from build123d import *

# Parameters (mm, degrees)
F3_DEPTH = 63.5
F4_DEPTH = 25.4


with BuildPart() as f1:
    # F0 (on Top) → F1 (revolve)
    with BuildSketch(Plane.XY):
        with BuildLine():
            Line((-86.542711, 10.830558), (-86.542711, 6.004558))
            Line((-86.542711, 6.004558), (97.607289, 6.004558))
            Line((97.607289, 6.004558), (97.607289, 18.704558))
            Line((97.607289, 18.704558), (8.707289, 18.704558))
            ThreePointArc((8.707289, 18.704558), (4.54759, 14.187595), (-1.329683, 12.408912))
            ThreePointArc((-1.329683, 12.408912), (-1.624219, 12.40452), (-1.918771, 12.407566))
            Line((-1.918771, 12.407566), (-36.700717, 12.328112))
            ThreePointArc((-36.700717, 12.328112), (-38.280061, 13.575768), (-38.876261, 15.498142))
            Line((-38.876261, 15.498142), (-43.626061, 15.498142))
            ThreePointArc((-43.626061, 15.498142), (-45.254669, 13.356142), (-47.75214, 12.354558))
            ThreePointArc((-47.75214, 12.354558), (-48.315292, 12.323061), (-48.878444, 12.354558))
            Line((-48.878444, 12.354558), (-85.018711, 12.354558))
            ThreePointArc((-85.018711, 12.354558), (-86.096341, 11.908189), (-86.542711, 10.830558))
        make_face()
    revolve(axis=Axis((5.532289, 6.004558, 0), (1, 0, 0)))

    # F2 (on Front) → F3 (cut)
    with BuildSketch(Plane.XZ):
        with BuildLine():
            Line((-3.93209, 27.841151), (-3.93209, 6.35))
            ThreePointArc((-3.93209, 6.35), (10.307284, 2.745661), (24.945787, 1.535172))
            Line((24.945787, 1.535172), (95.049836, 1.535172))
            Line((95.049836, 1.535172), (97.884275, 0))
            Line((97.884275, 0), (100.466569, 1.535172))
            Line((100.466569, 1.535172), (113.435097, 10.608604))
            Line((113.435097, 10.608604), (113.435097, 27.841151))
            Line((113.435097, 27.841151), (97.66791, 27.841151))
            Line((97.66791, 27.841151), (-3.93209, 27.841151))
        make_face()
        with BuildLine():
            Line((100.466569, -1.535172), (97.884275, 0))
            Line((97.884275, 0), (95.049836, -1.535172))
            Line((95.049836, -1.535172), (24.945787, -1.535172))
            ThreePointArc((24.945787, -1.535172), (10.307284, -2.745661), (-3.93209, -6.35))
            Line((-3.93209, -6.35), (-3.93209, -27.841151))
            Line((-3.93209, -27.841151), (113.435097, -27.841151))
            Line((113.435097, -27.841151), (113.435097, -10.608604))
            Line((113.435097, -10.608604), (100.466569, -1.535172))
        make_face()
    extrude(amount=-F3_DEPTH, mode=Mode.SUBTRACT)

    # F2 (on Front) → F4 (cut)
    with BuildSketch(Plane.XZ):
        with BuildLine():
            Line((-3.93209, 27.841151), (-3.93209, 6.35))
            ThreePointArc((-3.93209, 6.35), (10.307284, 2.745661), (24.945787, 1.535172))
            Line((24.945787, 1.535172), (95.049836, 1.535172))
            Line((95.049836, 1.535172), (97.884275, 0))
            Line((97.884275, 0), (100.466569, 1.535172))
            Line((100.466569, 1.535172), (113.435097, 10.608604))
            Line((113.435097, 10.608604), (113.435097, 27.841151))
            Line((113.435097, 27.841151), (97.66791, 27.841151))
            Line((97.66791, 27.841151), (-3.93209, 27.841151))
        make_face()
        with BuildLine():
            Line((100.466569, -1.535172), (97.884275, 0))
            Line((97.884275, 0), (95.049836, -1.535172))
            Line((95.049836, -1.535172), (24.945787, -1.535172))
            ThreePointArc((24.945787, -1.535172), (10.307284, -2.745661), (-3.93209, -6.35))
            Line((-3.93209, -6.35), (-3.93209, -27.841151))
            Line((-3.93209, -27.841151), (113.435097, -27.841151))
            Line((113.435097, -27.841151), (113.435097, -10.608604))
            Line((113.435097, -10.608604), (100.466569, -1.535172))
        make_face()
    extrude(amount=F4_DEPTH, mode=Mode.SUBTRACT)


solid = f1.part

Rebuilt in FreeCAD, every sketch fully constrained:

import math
import FreeCAD as App
import Part
import Sketcher
from FreeCAD import Vector
Q = App.Units.Quantity

doc = App.newDocument("Part")
params = doc.addObject("Spreadsheet::Sheet", "Params")
for row, (alias, value) in enumerate([
    ("sketch1_radius", "0.06 in"),
    ("sketch1_width", "3.5 in"),
    ("sketch1_height", "0.5 in"),
    ("sketch1_width2", "7.25 in"),
    ("sketch1_width3", "7.25 in"),
    ("revolution_angle", "360 deg"),
    ("pocket1_length", "2.5 in"),
    ("pocket2_length", "1 in"),
], start=1):
    params.set(f"A{row}", alias)
    params.set(f"B{row}", "=" + value)
    params.setAlias(f"B{row}", alias)

body = doc.addObject("PartDesign::Body", "Body")

sketch1 = body.newObject("Sketcher::SketchObject", "Sketch")
sketch1.AttachmentSupport = (doc.getObject("XY_Plane"), [""])
sketch1.MapMode = "FlatFace"
sketch1.addGeometry([
    Part.LineSegment(Vector(-86.542711, 10.830558, 0), Vector(-86.542711, 6.004558, 0)),
    Part.LineSegment(Vector(-86.542711, 6.004558, 0), Vector(97.607289, 6.004558, 0)),
    Part.LineSegment(Vector(97.607289, 6.004558, 0), Vector(97.607289, 18.704558, 0)),
    Part.LineSegment(Vector(97.607289, 18.704558, 0), Vector(8.707289, 18.704558, 0)),
    Part.ArcOfCircle(Part.Circle(Vector(-1.650865, 24.069618, 0), Vector(0, 0, 1), 11.665128), math.radians(-88.422247), math.radians(-27.382134)),
    Part.ArcOfCircle(Part.Circle(Vector(-1.650873, 24.070294, 0), Vector(0, 0, 1), 11.665804), math.radians(-91.315876), math.radians(-88.422296)),
    Part.LineSegment(Vector(-1.918771, 12.407566, 0), Vector(-36.700717, 12.328112, 0)),
    Part.ArcOfCircle(Part.Circle(Vector(-35.478931, 15.498142, 0), Vector(0, 0, 1), 3.39733), math.radians(-179.999999), math.radians(-111.077552)),
    Part.LineSegment(Vector(-38.876261, 15.498142, 0), Vector(-43.626061, 15.498142, 0)),
    Part.ArcOfCircle(Part.Circle(Vector(-48.315293, 17.373332, 0), Vector(0, 0, 1), 5.05027), math.radians(-83.597666), math.radians(-21.796111)),
    Part.ArcOfCircle(Part.Circle(Vector(-48.315292, 17.37326, 0), Vector(0, 0, 1), 5.050199), math.radians(-96.402417), math.radians(-83.597583)),
    Part.LineSegment(Vector(-48.878444, 12.354558, 0), Vector(-85.018711, 12.354558, 0)),
    Part.ArcOfCircle(Part.Circle(Vector(-85.01871, 10.830557, 0), Vector(0, 0, 1), 1.524001), math.radians(90.00003), math.radians(179.99997)),
], False)
sketch1.addGeometry(Part.LineSegment(Vector(-86.542711, 6.004558, 0), Vector(97.607289, 6.004558, 0)), True)
sketch1.addConstraint([
    Sketcher.Constraint("Coincident", 0, 2, 1, 1),
    Sketcher.Constraint("Coincident", 1, 2, 2, 1),
    Sketcher.Constraint("Coincident", 2, 2, 3, 1),
    Sketcher.Constraint("Coincident", 3, 2, 4, 2),
    Sketcher.Constraint("Coincident", 4, 1, 5, 2),
    Sketcher.Constraint("Coincident", 5, 1, 6, 1),
    Sketcher.Constraint("Coincident", 6, 2, 7, 2),
    Sketcher.Constraint("Coincident", 7, 1, 8, 1),
    Sketcher.Constraint("Coincident", 8, 2, 9, 2),
    Sketcher.Constraint("Coincident", 9, 1, 10, 2),
    Sketcher.Constraint("Coincident", 10, 1, 11, 1),
    Sketcher.Constraint("Coincident", 11, 2, 12, 1),
    Sketcher.Constraint("Coincident", 12, 2, 0, 1),
    Sketcher.Constraint("Vertical", 0),
    Sketcher.Constraint("Horizontal", 1),
    Sketcher.Constraint("Vertical", 2),
    Sketcher.Constraint("Horizontal", 3),
    Sketcher.Constraint("Horizontal", 8),
    Sketcher.Constraint("Horizontal", 11),
    Sketcher.Constraint("Horizontal", 13),
    Sketcher.Constraint("Coincident", 13, 1, 0, 2),
    Sketcher.Constraint("Radius", 12, Q("0.06 in")),
    Sketcher.Constraint("DistanceX", 3, 2, 3, 1, Q("3.5 in")),
    Sketcher.Constraint("DistanceY", 2, 1, 2, 2, Q("0.5 in")),
    Sketcher.Constraint("DistanceX", 1, 1, 1, 2, Q("7.25 in")),
    Sketcher.Constraint("DistanceX", 13, 1, 13, 2, Q("7.25 in")),
    Sketcher.Constraint("DistanceY", 0, 2, 0, 1, Q("0.19 in")),
    Sketcher.Constraint("DistanceX", 8, 2, 8, 1, Q("0.187 in")),
    Sketcher.Constraint("Radius", 10, Q("5.050199 mm")),
    Sketcher.Constraint("DistanceY", 0, 2, 12, 3, Q("0.19 in")),
    Sketcher.Constraint("DistanceX", 0, 2, 11, 2, Q("0.06 in")),
    Sketcher.Constraint("Radius", 4, Q("11.665128 mm")),
    Sketcher.Constraint("Radius", 7, Q("3.39733 mm")),
    Sketcher.Constraint("Radius", 9, Q("5.05027 mm")),
    Sketcher.Constraint("DistanceY", -1, 1, 12, 3, Q("0.4263999 in")),
    Sketcher.Constraint("DistanceY", -1, 1, 9, 1, Q("0.4863999 in")),
    Sketcher.Constraint("Radius", 5, Q("11.665804 mm")),
    Sketcher.Constraint("DistanceY", 6, 2, 4, 1, Q("0.0808 mm")),
    Sketcher.Constraint("DistanceX", 11, 2, 11, 1, Q("36.140267 mm")),
    Sketcher.Constraint("DistanceX", 7, 3, -1, 1, Q("35.478931 mm")),
    Sketcher.Constraint("DistanceY", -1, 1, 9, 3, Q("17.373332 mm")),
    Sketcher.Constraint("DistanceY", -1, 1, 10, 3, Q("17.37326 mm")),
    Sketcher.Constraint("DistanceX", 12, 3, -1, 1, Q("85.01871 mm")),
    Sketcher.Constraint("DistanceX", 5, 1, -1, 1, Q("1.918771 mm")),
    Sketcher.Constraint("DistanceY", 7, 3, 5, 3, Q("8.572152 mm")),
    Sketcher.Constraint("DistanceY", 7, 3, 9, 3, Q("1.87519 mm")),
    Sketcher.Constraint("DistanceX", 9, 3, 5, 3, Q("46.664419 mm")),
    Sketcher.Constraint("DistanceX", 4, 3, 4, 1, Q("0.321182 mm")),
])
sketch1.setExpression("Constraints[21]", "Params.sketch1_radius")
sketch1.setExpression("Constraints[22]", "Params.sketch1_width")
sketch1.setExpression("Constraints[23]", "Params.sketch1_height")
sketch1.setExpression("Constraints[24]", "Params.sketch1_width2")
sketch1.setExpression("Constraints[25]", "Params.sketch1_width3")
revolution = body.newObject("PartDesign::Revolution", "Revolution")
revolution.Profile = sketch1
revolution.ReferenceAxis = (sketch1, ["Axis0"])
revolution.setExpression("Angle", "Params.revolution_angle")

sketch2 = body.newObject("Sketcher::SketchObject", "Sketch001")
sketch2.AttachmentSupport = (doc.getObject("XZ_Plane"), [""])
sketch2.MapMode = "FlatFace"
sketch2.addGeometry([
    Part.LineSegment(Vector(-3.9, 27.8, 0), Vector(-3.9, 6.3, 0)),
    Part.ArcOfCircle(Part.Circle(Vector(24.9, 90.4, 0), Vector(0, 0, 1), 88.9), math.radians(-108.94), math.radians(-89.99)),
    Part.LineSegment(Vector(24.9, 1.5, 0), Vector(95, 1.5, 0)),
    Part.LineSegment(Vector(95, 1.5, 0), Vector(97.9, 0, 0)),
    Part.LineSegment(Vector(97.9, 0, 0), Vector(100.5, 1.5, 0)),
    Part.LineSegment(Vector(100.5, 1.5, 0), Vector(113.4, 10.6, 0)),
    Part.LineSegment(Vector(113.4, 10.6, 0), Vector(113.4, 27.8, 0)),
    Part.LineSegment(Vector(113.4, 27.8, 0), Vector(-3.9, 27.8, 0)),
    Part.LineSegment(Vector(100.5, -1.5, 0), Vector(97.9, 0, 0)),
    Part.LineSegment(Vector(97.9, 0, 0), Vector(95, -1.5, 0)),
    Part.LineSegment(Vector(95, -1.5, 0), Vector(24.9, -1.5, 0)),
    Part.ArcOfCircle(Part.Circle(Vector(24.9, -90.4, 0), Vector(0, 0, 1), 88.9), math.radians(89.99), math.radians(108.94)),
    Part.LineSegment(Vector(-3.9, -6.3, 0), Vector(-3.9, -27.8, 0)),
    Part.LineSegment(Vector(-3.9, -27.8, 0), Vector(113.4, -27.8, 0)),
    Part.LineSegment(Vector(113.4, -27.8, 0), Vector(113.4, -10.6, 0)),
    Part.LineSegment(Vector(113.4, -10.6, 0), Vector(100.5, -1.5, 0)),
], False)
sketch2.addConstraint([
    Sketcher.Constraint("Coincident", 0, 2, 1, 1),
    Sketcher.Constraint("Coincident", 1, 2, 2, 1),
    Sketcher.Constraint("Coincident", 2, 2, 3, 1),
    Sketcher.Constraint("Coincident", 3, 2, 4, 1),
    Sketcher.Constraint("Coincident", 4, 2, 5, 1),
    Sketcher.Constraint("Coincident", 5, 2, 6, 1),
    Sketcher.Constraint("Coincident", 6, 2, 7, 1),
    Sketcher.Constraint("Coincident", 7, 2, 0, 1),
    Sketcher.Constraint("Coincident", 8, 2, 9, 1),
    Sketcher.Constraint("Coincident", 9, 2, 10, 1),
    Sketcher.Constraint("Coincident", 10, 2, 11, 1),
    Sketcher.Constraint("Coincident", 11, 2, 12, 1),
    Sketcher.Constraint("Coincident", 12, 2, 13, 1),
    Sketcher.Constraint("Coincident", 13, 2, 14, 1),
    Sketcher.Constraint("Coincident", 14, 2, 15, 1),
    Sketcher.Constraint("Coincident", 15, 2, 8, 1),
    Sketcher.Constraint("Vertical", 0),
    Sketcher.Constraint("Horizontal", 2),
    Sketcher.Constraint("Vertical", 6),
    Sketcher.Constraint("Horizontal", 7),
    Sketcher.Constraint("Horizontal", 10),
    Sketcher.Constraint("Vertical", 12),
    Sketcher.Constraint("Horizontal", 13),
    Sketcher.Constraint("Vertical", 14),
    Sketcher.Constraint("Coincident", 8, 2, 3, 2),
    Sketcher.Constraint("Equal", 1, 11),
    Sketcher.Constraint("Symmetric", 1, 3, 11, 3, -1),
    Sketcher.Constraint("Symmetric", 7, 2, 12, 2, -1),
    Sketcher.Constraint("Symmetric", 5, 2, 14, 2, -1),
    Sketcher.Constraint("Symmetric", 4, 2, 15, 2, -1),
    Sketcher.Constraint("PointOnObject", 3, 2, -1),
    Sketcher.Constraint("Horizontal", 2, 2, 4, 2),
    Sketcher.Constraint("Vertical", 2, 2, 9, 2),
    Sketcher.Constraint("Vertical", 1, 2, 10, 2),
    Sketcher.Constraint("DistanceY", 11, 2, 0, 2, Q("0.5 in")),
    Sketcher.Constraint("Radius", 1, Q("88.900013 mm")),
    Sketcher.Constraint("DistanceX", 2, 1, 2, 2, Q("70.104049 mm")),
    Sketcher.Constraint("DistanceY", 0, 2, 0, 1, Q("21.491151 mm")),
    Sketcher.Constraint("DistanceX", 7, 2, 7, 1, Q("117.367187 mm")),
    Sketcher.Constraint("DistanceY", 6, 1, 6, 2, Q("17.232547 mm")),
    Sketcher.Constraint("DistanceX", 0, 2, -1, 1, Q("3.93209 mm")),
    Sketcher.Constraint("DistanceX", -1, 1, 4, 2, Q("100.466569 mm")),
    Sketcher.Constraint("DistanceX", 1, 3, 1, 2, Q("0.017969 mm")),
    Sketcher.Constraint("DistanceX", 2, 2, 3, 2, Q("2.834439 mm")),
    Sketcher.Constraint("DistanceX", 1, 3, 4, 2, Q("75.538751 mm")),
])
pocket1 = body.newObject("PartDesign::Pocket", "Pocket")
pocket1.Profile = sketch2
pocket1.setExpression("Length", "Params.pocket1_length")

sketch3 = body.newObject("Sketcher::SketchObject", "Sketch002")
sketch3.AttachmentSupport = (doc.getObject("XZ_Plane"), [""])
sketch3.MapMode = "FlatFace"
sketch3.addGeometry([
    Part.LineSegment(Vector(-3.9, 27.8, 0), Vector(-3.9, 6.3, 0)),
    Part.ArcOfCircle(Part.Circle(Vector(24.9, 90.4, 0), Vector(0, 0, 1), 88.9), math.radians(-108.94), math.radians(-89.99)),
    Part.LineSegment(Vector(24.9, 1.5, 0), Vector(95, 1.5, 0)),
    Part.LineSegment(Vector(95, 1.5, 0), Vector(97.9, 0, 0)),
    Part.LineSegment(Vector(97.9, 0, 0), Vector(100.5, 1.5, 0)),
    Part.LineSegment(Vector(100.5, 1.5, 0), Vector(113.4, 10.6, 0)),
    Part.LineSegment(Vector(113.4, 10.6, 0), Vector(113.4, 27.8, 0)),
    Part.LineSegment(Vector(113.4, 27.8, 0), Vector(-3.9, 27.8, 0)),
    Part.LineSegment(Vector(100.5, -1.5, 0), Vector(97.9, 0, 0)),
    Part.LineSegment(Vector(97.9, 0, 0), Vector(95, -1.5, 0)),
    Part.LineSegment(Vector(95, -1.5, 0), Vector(24.9, -1.5, 0)),
    Part.ArcOfCircle(Part.Circle(Vector(24.9, -90.4, 0), Vector(0, 0, 1), 88.9), math.radians(89.99), math.radians(108.94)),
    Part.LineSegment(Vector(-3.9, -6.3, 0), Vector(-3.9, -27.8, 0)),
    Part.LineSegment(Vector(-3.9, -27.8, 0), Vector(113.4, -27.8, 0)),
    Part.LineSegment(Vector(113.4, -27.8, 0), Vector(113.4, -10.6, 0)),
    Part.LineSegment(Vector(113.4, -10.6, 0), Vector(100.5, -1.5, 0)),
], False)
sketch3.addConstraint([
    Sketcher.Constraint("Coincident", 0, 2, 1, 1),
    Sketcher.Constraint("Coincident", 1, 2, 2, 1),
    Sketcher.Constraint("Coincident", 2, 2, 3, 1),
    Sketcher.Constraint("Coincident", 3, 2, 4, 1),
    Sketcher.Constraint("Coincident", 4, 2, 5, 1),
    Sketcher.Constraint("Coincident", 5, 2, 6, 1),
    Sketcher.Constraint("Coincident", 6, 2, 7, 1),
    Sketcher.Constraint("Coincident", 7, 2, 0, 1),
    Sketcher.Constraint("Coincident", 8, 2, 9, 1),
    Sketcher.Constraint("Coincident", 9, 2, 10, 1),
    Sketcher.Constraint("Coincident", 10, 2, 11, 1),
    Sketcher.Constraint("Coincident", 11, 2, 12, 1),
    Sketcher.Constraint("Coincident", 12, 2, 13, 1),
    Sketcher.Constraint("Coincident", 13, 2, 14, 1),
    Sketcher.Constraint("Coincident", 14, 2, 15, 1),
    Sketcher.Constraint("Coincident", 15, 2, 8, 1),
    Sketcher.Constraint("Vertical", 0),
    Sketcher.Constraint("Horizontal", 2),
    Sketcher.Constraint("Vertical", 6),
    Sketcher.Constraint("Horizontal", 7),
    Sketcher.Constraint("Horizontal", 10),
    Sketcher.Constraint("Vertical", 12),
    Sketcher.Constraint("Horizontal", 13),
    Sketcher.Constraint("Vertical", 14),
    Sketcher.Constraint("Coincident", 8, 2, 3, 2),
    Sketcher.Constraint("Equal", 1, 11),
    Sketcher.Constraint("Symmetric", 1, 3, 11, 3, -1),
    Sketcher.Constraint("Symmetric", 7, 2, 12, 2, -1),
    Sketcher.Constraint("Symmetric", 5, 2, 14, 2, -1),
    Sketcher.Constraint("Symmetric", 4, 2, 15, 2, -1),
    Sketcher.Constraint("PointOnObject", 3, 2, -1),
    Sketcher.Constraint("Horizontal", 2, 2, 4, 2),
    Sketcher.Constraint("Vertical", 2, 2, 9, 2),
    Sketcher.Constraint("Vertical", 1, 2, 10, 2),
    Sketcher.Constraint("DistanceY", 11, 2, 0, 2, Q("0.5 in")),
    Sketcher.Constraint("Radius", 1, Q("88.900013 mm")),
    Sketcher.Constraint("DistanceX", 2, 1, 2, 2, Q("70.104049 mm")),
    Sketcher.Constraint("DistanceY", 0, 2, 0, 1, Q("21.491151 mm")),
    Sketcher.Constraint("DistanceX", 7, 2, 7, 1, Q("117.367187 mm")),
    Sketcher.Constraint("DistanceY", 6, 1, 6, 2, Q("17.232547 mm")),
    Sketcher.Constraint("DistanceX", 0, 2, -1, 1, Q("3.93209 mm")),
    Sketcher.Constraint("DistanceX", -1, 1, 4, 2, Q("100.466569 mm")),
    Sketcher.Constraint("DistanceX", 1, 3, 1, 2, Q("0.017969 mm")),
    Sketcher.Constraint("DistanceX", 2, 2, 3, 2, Q("2.834439 mm")),
    Sketcher.Constraint("DistanceX", 1, 3, 4, 2, Q("75.538751 mm")),
])
pocket2 = body.newObject("PartDesign::Pocket", "Pocket001")
pocket2.Profile = sketch3
pocket2.setExpression("Length", "Params.pocket2_length")
pocket2.Reversed = True

doc.recompute()
